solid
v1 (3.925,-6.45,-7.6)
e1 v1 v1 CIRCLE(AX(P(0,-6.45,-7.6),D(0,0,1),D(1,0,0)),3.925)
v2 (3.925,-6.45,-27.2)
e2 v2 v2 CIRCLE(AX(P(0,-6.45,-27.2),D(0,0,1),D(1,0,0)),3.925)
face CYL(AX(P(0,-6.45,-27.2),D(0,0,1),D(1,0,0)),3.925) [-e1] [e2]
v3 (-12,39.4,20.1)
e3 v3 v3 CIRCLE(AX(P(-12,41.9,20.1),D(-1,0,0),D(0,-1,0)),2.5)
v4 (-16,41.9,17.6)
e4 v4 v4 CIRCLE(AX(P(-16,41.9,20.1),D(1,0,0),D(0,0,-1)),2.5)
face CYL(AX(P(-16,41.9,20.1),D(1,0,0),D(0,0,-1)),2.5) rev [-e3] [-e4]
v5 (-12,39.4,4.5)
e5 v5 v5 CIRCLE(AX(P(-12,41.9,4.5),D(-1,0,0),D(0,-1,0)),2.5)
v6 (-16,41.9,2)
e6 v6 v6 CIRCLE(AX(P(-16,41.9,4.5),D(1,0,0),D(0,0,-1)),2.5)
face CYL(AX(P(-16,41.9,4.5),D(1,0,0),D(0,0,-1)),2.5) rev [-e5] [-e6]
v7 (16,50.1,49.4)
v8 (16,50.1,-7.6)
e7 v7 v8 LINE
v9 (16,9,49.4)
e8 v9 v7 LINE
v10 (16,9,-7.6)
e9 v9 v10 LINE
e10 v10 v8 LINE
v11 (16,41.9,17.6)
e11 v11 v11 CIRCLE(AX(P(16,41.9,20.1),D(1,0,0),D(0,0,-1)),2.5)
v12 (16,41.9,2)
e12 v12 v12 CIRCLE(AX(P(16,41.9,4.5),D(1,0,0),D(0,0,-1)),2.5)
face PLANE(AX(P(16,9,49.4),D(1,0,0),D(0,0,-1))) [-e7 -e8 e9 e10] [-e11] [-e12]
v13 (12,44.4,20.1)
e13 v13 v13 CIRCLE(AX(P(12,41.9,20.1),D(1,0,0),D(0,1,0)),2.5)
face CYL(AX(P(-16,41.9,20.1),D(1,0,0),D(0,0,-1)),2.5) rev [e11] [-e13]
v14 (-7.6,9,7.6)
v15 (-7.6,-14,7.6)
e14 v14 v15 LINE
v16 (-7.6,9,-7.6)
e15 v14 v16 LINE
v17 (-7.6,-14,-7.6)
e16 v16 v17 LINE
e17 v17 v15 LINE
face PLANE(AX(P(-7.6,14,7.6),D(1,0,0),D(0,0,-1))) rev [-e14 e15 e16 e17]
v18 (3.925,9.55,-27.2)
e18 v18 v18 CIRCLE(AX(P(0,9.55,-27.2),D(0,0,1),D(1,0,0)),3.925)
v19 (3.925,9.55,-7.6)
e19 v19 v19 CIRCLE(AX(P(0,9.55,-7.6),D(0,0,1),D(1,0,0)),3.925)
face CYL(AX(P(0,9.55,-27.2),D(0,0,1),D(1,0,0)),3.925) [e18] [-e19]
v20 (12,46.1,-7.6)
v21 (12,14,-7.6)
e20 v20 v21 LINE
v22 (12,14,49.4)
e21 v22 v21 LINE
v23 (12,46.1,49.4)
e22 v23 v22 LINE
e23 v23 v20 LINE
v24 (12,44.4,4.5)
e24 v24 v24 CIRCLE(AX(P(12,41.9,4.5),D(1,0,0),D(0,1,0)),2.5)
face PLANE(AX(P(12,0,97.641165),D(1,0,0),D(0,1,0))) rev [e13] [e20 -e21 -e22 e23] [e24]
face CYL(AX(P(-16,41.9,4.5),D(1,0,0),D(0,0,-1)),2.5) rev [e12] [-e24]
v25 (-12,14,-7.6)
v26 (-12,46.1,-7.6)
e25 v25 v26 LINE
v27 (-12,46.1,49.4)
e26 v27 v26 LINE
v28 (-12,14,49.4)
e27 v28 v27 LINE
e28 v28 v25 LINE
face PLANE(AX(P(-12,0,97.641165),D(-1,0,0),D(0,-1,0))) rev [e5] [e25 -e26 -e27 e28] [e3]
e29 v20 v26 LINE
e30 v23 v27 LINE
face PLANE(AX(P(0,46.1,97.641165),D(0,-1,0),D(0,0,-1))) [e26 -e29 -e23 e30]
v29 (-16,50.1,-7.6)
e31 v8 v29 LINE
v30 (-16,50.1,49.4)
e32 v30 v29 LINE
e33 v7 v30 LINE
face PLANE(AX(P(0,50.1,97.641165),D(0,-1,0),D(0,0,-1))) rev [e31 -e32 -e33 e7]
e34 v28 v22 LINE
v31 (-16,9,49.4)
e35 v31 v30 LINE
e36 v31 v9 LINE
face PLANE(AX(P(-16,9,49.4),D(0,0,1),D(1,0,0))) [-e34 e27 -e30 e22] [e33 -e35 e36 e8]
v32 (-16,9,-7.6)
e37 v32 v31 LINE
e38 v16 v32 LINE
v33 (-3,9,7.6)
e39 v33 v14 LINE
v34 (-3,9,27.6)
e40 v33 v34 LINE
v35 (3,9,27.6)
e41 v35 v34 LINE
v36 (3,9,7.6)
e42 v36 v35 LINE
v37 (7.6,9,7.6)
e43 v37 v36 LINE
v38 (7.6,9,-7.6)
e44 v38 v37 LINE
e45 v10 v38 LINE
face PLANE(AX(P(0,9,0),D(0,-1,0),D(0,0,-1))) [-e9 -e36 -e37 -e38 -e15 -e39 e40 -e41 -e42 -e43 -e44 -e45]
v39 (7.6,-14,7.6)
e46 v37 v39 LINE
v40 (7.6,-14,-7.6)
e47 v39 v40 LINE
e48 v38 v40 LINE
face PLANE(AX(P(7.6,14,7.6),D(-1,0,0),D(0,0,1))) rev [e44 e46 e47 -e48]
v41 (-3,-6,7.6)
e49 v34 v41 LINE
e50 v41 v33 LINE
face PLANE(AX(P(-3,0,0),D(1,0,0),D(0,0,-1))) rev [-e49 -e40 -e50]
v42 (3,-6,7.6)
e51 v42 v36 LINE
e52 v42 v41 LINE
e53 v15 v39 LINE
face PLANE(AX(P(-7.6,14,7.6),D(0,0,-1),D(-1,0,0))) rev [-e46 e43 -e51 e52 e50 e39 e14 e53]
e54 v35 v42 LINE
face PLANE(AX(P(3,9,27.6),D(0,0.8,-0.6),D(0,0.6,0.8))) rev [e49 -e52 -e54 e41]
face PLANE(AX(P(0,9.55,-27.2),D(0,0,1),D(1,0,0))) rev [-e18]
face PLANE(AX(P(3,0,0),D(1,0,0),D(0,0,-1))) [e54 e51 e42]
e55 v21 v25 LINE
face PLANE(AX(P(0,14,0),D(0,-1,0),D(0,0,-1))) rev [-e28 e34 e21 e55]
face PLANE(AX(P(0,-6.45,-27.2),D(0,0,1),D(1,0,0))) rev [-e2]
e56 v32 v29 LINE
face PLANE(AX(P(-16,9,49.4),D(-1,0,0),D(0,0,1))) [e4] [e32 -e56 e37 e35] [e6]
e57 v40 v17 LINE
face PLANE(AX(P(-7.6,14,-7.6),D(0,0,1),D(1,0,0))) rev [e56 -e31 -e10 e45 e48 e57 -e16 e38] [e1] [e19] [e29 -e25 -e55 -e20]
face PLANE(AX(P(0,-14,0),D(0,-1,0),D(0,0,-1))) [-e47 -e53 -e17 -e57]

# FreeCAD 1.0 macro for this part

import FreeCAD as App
import Part
import Sketcher

V = App.Vector
Q = App.Units.Quantity

doc = App.newDocument("Part")
body = doc.addObject("PartDesign::Body", "Body")

sketch1 = body.newObject("Sketcher::SketchObject", "Sketch")
sketch1.AttachmentSupport = (doc.getObject("XZ_Plane"), [""])
sketch1.MapMode = "FlatFace"
sketch1.addGeometry(Part.LineSegment(V(-8, -8, 0), V(-8, 8, 0)), False)
sketch1.addGeometry(Part.LineSegment(V(-8, 8, 0), V(8, 8, 0)), False)
sketch1.addGeometry(Part.LineSegment(V(8, 8, 0), V(8, -8, 0)), False)
sketch1.addGeometry(Part.LineSegment(V(8, -8, 0), V(-8, -8, 0)), False)
sketch1.addConstraint(Sketcher.Constraint("Coincident", 0, 2, 1, 1))
sketch1.addConstraint(Sketcher.Constraint("Coincident", 1, 2, 2, 1))
sketch1.addConstraint(Sketcher.Constraint("Coincident", 2, 2, 3, 1))
sketch1.addConstraint(Sketcher.Constraint("Coincident", 3, 2, 0, 1))
sketch1.addConstraint(Sketcher.Constraint("Vertical", 0))
sketch1.addConstraint(Sketcher.Constraint("Horizontal", 1))
sketch1.addConstraint(Sketcher.Constraint("Vertical", 2))
sketch1.addConstraint(Sketcher.Constraint("Horizontal", 3))
sketch1.addConstraint(Sketcher.Constraint("Symmetric", 0, 2, 2, 2, -1, 1))
sketch1.addConstraint(Sketcher.Constraint("Equal", 3, 0))
sketch1.addConstraint(Sketcher.Constraint("DistanceX", 1, 1, 1, 2, Q("15.2 mm")))
pad1 = body.newObject("PartDesign::Pad", "Pad")
pad1.Profile = sketch1
pad1.Length = 28
pad1.Midplane = True

sketch2 = body.newObject("Sketcher::SketchObject", "Sketch001")
sketch2.AttachmentSupport = (doc.getObject("XY_Plane"), [""])
sketch2.MapMode = "FlatFace"
sketch2.AttachmentOffset = App.Placement(V(0, 0, -7.6), App.Rotation())
sketch2.addGeometry(Part.Circle(V(0, -6.5, 0), V(0, 0, 1), 3.9), False)
sketch2.addGeometry(Part.Circle(V(0, 9.6, 0), V(0, 0, 1), 3.9), False)
sketch2.addConstraint(Sketcher.Constraint("Equal", 0, 1))
sketch2.addConstraint(Sketcher.Constraint("PointOnObject", 0, 3, -2))
sketch2.addConstraint(Sketcher.Constraint("PointOnObject", 1, 3, -2))
sketch2.addConstraint(Sketcher.Constraint("Diameter", 0, Q("7.85 mm")))
sketch2.addConstraint(Sketcher.Constraint("DistanceY", 0, 3, 1, 3, Q("16 mm")))
sketch2.addConstraint(Sketcher.Constraint("DistanceY", 0, 3, -1, 1, Q("6.45 mm")))
pad2 = body.newObject("PartDesign::Pad", "Pad001")
pad2.Profile = sketch2
pad2.Length = 19.6
pad2.Reversed = True

sketch3 = body.newObject("Sketcher::SketchObject", "Sketch002")
sketch3.AttachmentSupport = (doc.getObject("XZ_Plane"), [""])
sketch3.MapMode = "FlatFace"
sketch3.AttachmentOffset = App.Placement(V(0, 0, -14), App.Rotation())
sketch3.addGeometry(Part.LineSegment(V(-16, -8, 0), V(-16, 49, 0)), False)
sketch3.addGeometry(Part.LineSegment(V(-16, 49, 0), V(16, 49, 0)), False)
sketch3.addGeometry(Part.LineSegment(V(16, 49, 0), V(16, -8, 0)), False)
sketch3.addGeometry(Part.LineSegment(V(16, -8, 0), V(-16, -8, 0)), False)
sketch3.addConstraint(Sketcher.Constraint("Coincident", 0, 2, 1, 1))
sketch3.addConstraint(Sketcher.Constraint("Coincident", 1, 2, 2, 1))
sketch3.addConstraint(Sketcher.Constraint("Coincident", 2, 2, 3, 1))
sketch3.addConstraint(Sketcher.Constraint("Coincident", 3, 2, 0, 1))
sketch3.addConstraint(Sketcher.Constraint("Vertical", 0))
sketch3.addConstraint(Sketcher.Constraint("Horizontal", 1))
sketch3.addConstraint(Sketcher.Constraint("Vertical", 2))
sketch3.addConstraint(Sketcher.Constraint("Horizontal", 3))
sketch3.addConstraint(Sketcher.Constraint("DistanceX", 1, 1, 1, 2, Q("32 mm")))
sketch3.addConstraint(Sketcher.Constraint("DistanceY", 0, 1, 0, 2, Q("57 mm")))
sketch3.addConstraint(Sketcher.Constraint("DistanceX", 0, 2, -1, 1, Q("16 mm")))
sketch3.addConstraint(Sketcher.Constraint("DistanceY", -1, 1, 0, 2, Q("49.4 mm")))
pad3 = body.newObject("PartDesign::Pad", "Pad002")
pad3.Profile = sketch3
pad3.Length = 5

sketch4 = body.newObject("Sketcher::SketchObject", "Sketch003")
sketch4.AttachmentSupport = (doc.getObject("XY_Plane"), [""])
sketch4.MapMode = "FlatFace"
sketch4.AttachmentOffset = App.Placement(V(0, 0, -7.6), App.Rotation())
sketch4.addGeometry(Part.LineSegment(V(16, 14, 0), V(12, 14, 0)), False)
sketch4.addGeometry(Part.LineSegment(V(12, 14, 0), V(12, 46.1, 0)), False)
sketch4.addGeometry(Part.LineSegment(V(12, 46.1, 0), V(-12, 46.1, 0)), False)
sketch4.addGeometry(Part.LineSegment(V(-12, 46.1, 0), V(-12, 14, 0)), False)
sketch4.addGeometry(Part.LineSegment(V(-12, 14, 0), V(-16, 14, 0)), False)
sketch4.addGeometry(Part.LineSegment(V(-16, 14, 0), V(-16, 50.1, 0)), False)
sketch4.addGeometry(Part.LineSegment(V(-16, 50.1, 0), V(16, 50.1, 0)), False)
sketch4.addGeometry(Part.LineSegment(V(16, 50.1, 0), V(16, 14, 0)), False)
sketch4.addConstraint(Sketcher.Constraint("Coincident", 0, 2, 1, 1))
sketch4.addConstraint(Sketcher.Constraint("Coincident", 1, 2, 2, 1))
sketch4.addConstraint(Sketcher.Constraint("Coincident", 2, 2, 3, 1))
sketch4.addConstraint(Sketcher.Constraint("Coincident", 3, 2, 4, 1))
sketch4.addConstraint(Sketcher.Constraint("Coincident", 4, 2, 5, 1))
sketch4.addConstraint(Sketcher.Constraint("Coincident", 5, 2, 6, 1))
sketch4.addConstraint(Sketcher.Constraint("Coincident", 6, 2, 7, 1))
sketch4.addConstraint(Sketcher.Constraint("Coincident", 7, 2, 0, 1))
sketch4.addConstraint(Sketcher.Constraint("Horizontal", 0))
sketch4.addConstraint(Sketcher.Constraint("Vertical", 1))
sketch4.addConstraint(Sketcher.Constraint("Horizontal", 2))
sketch4.addConstraint(Sketcher.Constraint("Vertical", 3))
sketch4.addConstraint(Sketcher.Constraint("Horizontal", 4))
sketch4.addConstraint(Sketcher.Constraint("Vertical", 5))
sketch4.addConstraint(Sketcher.Constraint("Horizontal", 6))
sketch4.addConstraint(Sketcher.Constraint("Vertical", 7))
sketch4.addConstraint(Sketcher.Constraint("Symmetric", 0, 2, 3, 2, -2))
sketch4.addConstraint(Sketcher.Constraint("Equal", 0, 4))
sketch4.addConstraint(Sketcher.Constraint("DistanceX", 0, 2, 0, 1, Q("4 mm")))
sketch4.addConstraint(Sketcher.Constraint("DistanceX", 2, 2, 2, 1, Q("24 mm")))
sketch4.addConstraint(Sketcher.Constraint("DistanceY", 1, 1, 1, 2, Q("32.1 mm")))
sketch4.addConstraint(Sketcher.Constraint("DistanceY", 5, 1, 5, 2, Q("36.1 mm")))
sketch4.addConstraint(Sketcher.Constraint("DistanceY", -1, 1, 0, 2, Q("14 mm")))
pad4 = body.newObject("PartDesign::Pad", "Pad003")
pad4.Profile = sketch4
pad4.Length = 57

sketch5 = body.newObject("Sketcher::SketchObject", "Sketch004")
sketch5.AttachmentSupport = (doc.getObject("YZ_Plane"), [""])
sketch5.MapMode = "FlatFace"
sketch5.addGeometry(Part.LineSegment(V(-6, 8, 0), V(9, 8, 0)), False)
sketch5.addGeometry(Part.LineSegment(V(9, 8, 0), V(9, 28, 0)), False)
sketch5.addGeometry(Part.LineSegment(V(9, 28, 0), V(-6, 8, 0)), False)
sketch5.addConstraint(Sketcher.Constraint("Coincident", 0, 2, 1, 1))
sketch5.addConstraint(Sketcher.Constraint("Coincident", 1, 2, 2, 1))
sketch5.addConstraint(Sketcher.Constraint("Coincident", 2, 2, 0, 1))
sketch5.addConstraint(Sketcher.Constraint("Horizontal", 0))
sketch5.addConstraint(Sketcher.Constraint("Vertical", 1))
sketch5.addConstraint(Sketcher.Constraint("DistanceX", 0, 1, 0, 2, Q("15 mm")))
sketch5.addConstraint(Sketcher.Constraint("DistanceY", 1, 1, 1, 2, Q("20 mm")))
sketch5.addConstraint(Sketcher.Constraint("DistanceX", -1, 1, 0, 2, Q("9 mm")))
sketch5.addConstraint(Sketcher.Constraint("DistanceY", -1, 1, 0, 2, Q("7.6 mm")))
pad5 = body.newObject("PartDesign::Pad", "Pad004")
pad5.Profile = sketch5
pad5.Length = 6
pad5.Midplane = True

sketch6 = body.newObject("Sketcher::SketchObject", "Sketch005")
sketch6.AttachmentSupport = (doc.getObject("YZ_Plane"), [""])
sketch6.MapMode = "FlatFace"
sketch6.addGeometry(Part.Circle(V(41.9, 20.1, 0), V(0, 0, 1), 2.5), False)
sketch6.addGeometry(Part.Circle(V(41.9, 4.5, 0), V(0, 0, 1), 2.5), False)
sketch6.addConstraint(Sketcher.Constraint("Equal", 0, 1))
sketch6.addConstraint(Sketcher.Constraint("Vertical", 0, 3, 1, 3))
sketch6.addConstraint(Sketcher.Constraint("Diameter", 0, Q("5 mm")))
sketch6.addConstraint(Sketcher.Constraint("DistanceX", -1, 1, 0, 3, Q("41.9 mm")))
sketch6.addConstraint(Sketcher.Constraint("DistanceY", -1, 1, 0, 3, Q("20.1 mm")))
sketch6.addConstraint(Sketcher.Constraint("DistanceY", -1, 1, 1, 3, Q("4.5 mm")))
pocket1 = body.newObject("PartDesign::Pocket", "Pocket")
pocket1.Profile = sketch6
pocket1.Type = "ThroughAll"
pocket1.Midplane = True

doc.recompute()
